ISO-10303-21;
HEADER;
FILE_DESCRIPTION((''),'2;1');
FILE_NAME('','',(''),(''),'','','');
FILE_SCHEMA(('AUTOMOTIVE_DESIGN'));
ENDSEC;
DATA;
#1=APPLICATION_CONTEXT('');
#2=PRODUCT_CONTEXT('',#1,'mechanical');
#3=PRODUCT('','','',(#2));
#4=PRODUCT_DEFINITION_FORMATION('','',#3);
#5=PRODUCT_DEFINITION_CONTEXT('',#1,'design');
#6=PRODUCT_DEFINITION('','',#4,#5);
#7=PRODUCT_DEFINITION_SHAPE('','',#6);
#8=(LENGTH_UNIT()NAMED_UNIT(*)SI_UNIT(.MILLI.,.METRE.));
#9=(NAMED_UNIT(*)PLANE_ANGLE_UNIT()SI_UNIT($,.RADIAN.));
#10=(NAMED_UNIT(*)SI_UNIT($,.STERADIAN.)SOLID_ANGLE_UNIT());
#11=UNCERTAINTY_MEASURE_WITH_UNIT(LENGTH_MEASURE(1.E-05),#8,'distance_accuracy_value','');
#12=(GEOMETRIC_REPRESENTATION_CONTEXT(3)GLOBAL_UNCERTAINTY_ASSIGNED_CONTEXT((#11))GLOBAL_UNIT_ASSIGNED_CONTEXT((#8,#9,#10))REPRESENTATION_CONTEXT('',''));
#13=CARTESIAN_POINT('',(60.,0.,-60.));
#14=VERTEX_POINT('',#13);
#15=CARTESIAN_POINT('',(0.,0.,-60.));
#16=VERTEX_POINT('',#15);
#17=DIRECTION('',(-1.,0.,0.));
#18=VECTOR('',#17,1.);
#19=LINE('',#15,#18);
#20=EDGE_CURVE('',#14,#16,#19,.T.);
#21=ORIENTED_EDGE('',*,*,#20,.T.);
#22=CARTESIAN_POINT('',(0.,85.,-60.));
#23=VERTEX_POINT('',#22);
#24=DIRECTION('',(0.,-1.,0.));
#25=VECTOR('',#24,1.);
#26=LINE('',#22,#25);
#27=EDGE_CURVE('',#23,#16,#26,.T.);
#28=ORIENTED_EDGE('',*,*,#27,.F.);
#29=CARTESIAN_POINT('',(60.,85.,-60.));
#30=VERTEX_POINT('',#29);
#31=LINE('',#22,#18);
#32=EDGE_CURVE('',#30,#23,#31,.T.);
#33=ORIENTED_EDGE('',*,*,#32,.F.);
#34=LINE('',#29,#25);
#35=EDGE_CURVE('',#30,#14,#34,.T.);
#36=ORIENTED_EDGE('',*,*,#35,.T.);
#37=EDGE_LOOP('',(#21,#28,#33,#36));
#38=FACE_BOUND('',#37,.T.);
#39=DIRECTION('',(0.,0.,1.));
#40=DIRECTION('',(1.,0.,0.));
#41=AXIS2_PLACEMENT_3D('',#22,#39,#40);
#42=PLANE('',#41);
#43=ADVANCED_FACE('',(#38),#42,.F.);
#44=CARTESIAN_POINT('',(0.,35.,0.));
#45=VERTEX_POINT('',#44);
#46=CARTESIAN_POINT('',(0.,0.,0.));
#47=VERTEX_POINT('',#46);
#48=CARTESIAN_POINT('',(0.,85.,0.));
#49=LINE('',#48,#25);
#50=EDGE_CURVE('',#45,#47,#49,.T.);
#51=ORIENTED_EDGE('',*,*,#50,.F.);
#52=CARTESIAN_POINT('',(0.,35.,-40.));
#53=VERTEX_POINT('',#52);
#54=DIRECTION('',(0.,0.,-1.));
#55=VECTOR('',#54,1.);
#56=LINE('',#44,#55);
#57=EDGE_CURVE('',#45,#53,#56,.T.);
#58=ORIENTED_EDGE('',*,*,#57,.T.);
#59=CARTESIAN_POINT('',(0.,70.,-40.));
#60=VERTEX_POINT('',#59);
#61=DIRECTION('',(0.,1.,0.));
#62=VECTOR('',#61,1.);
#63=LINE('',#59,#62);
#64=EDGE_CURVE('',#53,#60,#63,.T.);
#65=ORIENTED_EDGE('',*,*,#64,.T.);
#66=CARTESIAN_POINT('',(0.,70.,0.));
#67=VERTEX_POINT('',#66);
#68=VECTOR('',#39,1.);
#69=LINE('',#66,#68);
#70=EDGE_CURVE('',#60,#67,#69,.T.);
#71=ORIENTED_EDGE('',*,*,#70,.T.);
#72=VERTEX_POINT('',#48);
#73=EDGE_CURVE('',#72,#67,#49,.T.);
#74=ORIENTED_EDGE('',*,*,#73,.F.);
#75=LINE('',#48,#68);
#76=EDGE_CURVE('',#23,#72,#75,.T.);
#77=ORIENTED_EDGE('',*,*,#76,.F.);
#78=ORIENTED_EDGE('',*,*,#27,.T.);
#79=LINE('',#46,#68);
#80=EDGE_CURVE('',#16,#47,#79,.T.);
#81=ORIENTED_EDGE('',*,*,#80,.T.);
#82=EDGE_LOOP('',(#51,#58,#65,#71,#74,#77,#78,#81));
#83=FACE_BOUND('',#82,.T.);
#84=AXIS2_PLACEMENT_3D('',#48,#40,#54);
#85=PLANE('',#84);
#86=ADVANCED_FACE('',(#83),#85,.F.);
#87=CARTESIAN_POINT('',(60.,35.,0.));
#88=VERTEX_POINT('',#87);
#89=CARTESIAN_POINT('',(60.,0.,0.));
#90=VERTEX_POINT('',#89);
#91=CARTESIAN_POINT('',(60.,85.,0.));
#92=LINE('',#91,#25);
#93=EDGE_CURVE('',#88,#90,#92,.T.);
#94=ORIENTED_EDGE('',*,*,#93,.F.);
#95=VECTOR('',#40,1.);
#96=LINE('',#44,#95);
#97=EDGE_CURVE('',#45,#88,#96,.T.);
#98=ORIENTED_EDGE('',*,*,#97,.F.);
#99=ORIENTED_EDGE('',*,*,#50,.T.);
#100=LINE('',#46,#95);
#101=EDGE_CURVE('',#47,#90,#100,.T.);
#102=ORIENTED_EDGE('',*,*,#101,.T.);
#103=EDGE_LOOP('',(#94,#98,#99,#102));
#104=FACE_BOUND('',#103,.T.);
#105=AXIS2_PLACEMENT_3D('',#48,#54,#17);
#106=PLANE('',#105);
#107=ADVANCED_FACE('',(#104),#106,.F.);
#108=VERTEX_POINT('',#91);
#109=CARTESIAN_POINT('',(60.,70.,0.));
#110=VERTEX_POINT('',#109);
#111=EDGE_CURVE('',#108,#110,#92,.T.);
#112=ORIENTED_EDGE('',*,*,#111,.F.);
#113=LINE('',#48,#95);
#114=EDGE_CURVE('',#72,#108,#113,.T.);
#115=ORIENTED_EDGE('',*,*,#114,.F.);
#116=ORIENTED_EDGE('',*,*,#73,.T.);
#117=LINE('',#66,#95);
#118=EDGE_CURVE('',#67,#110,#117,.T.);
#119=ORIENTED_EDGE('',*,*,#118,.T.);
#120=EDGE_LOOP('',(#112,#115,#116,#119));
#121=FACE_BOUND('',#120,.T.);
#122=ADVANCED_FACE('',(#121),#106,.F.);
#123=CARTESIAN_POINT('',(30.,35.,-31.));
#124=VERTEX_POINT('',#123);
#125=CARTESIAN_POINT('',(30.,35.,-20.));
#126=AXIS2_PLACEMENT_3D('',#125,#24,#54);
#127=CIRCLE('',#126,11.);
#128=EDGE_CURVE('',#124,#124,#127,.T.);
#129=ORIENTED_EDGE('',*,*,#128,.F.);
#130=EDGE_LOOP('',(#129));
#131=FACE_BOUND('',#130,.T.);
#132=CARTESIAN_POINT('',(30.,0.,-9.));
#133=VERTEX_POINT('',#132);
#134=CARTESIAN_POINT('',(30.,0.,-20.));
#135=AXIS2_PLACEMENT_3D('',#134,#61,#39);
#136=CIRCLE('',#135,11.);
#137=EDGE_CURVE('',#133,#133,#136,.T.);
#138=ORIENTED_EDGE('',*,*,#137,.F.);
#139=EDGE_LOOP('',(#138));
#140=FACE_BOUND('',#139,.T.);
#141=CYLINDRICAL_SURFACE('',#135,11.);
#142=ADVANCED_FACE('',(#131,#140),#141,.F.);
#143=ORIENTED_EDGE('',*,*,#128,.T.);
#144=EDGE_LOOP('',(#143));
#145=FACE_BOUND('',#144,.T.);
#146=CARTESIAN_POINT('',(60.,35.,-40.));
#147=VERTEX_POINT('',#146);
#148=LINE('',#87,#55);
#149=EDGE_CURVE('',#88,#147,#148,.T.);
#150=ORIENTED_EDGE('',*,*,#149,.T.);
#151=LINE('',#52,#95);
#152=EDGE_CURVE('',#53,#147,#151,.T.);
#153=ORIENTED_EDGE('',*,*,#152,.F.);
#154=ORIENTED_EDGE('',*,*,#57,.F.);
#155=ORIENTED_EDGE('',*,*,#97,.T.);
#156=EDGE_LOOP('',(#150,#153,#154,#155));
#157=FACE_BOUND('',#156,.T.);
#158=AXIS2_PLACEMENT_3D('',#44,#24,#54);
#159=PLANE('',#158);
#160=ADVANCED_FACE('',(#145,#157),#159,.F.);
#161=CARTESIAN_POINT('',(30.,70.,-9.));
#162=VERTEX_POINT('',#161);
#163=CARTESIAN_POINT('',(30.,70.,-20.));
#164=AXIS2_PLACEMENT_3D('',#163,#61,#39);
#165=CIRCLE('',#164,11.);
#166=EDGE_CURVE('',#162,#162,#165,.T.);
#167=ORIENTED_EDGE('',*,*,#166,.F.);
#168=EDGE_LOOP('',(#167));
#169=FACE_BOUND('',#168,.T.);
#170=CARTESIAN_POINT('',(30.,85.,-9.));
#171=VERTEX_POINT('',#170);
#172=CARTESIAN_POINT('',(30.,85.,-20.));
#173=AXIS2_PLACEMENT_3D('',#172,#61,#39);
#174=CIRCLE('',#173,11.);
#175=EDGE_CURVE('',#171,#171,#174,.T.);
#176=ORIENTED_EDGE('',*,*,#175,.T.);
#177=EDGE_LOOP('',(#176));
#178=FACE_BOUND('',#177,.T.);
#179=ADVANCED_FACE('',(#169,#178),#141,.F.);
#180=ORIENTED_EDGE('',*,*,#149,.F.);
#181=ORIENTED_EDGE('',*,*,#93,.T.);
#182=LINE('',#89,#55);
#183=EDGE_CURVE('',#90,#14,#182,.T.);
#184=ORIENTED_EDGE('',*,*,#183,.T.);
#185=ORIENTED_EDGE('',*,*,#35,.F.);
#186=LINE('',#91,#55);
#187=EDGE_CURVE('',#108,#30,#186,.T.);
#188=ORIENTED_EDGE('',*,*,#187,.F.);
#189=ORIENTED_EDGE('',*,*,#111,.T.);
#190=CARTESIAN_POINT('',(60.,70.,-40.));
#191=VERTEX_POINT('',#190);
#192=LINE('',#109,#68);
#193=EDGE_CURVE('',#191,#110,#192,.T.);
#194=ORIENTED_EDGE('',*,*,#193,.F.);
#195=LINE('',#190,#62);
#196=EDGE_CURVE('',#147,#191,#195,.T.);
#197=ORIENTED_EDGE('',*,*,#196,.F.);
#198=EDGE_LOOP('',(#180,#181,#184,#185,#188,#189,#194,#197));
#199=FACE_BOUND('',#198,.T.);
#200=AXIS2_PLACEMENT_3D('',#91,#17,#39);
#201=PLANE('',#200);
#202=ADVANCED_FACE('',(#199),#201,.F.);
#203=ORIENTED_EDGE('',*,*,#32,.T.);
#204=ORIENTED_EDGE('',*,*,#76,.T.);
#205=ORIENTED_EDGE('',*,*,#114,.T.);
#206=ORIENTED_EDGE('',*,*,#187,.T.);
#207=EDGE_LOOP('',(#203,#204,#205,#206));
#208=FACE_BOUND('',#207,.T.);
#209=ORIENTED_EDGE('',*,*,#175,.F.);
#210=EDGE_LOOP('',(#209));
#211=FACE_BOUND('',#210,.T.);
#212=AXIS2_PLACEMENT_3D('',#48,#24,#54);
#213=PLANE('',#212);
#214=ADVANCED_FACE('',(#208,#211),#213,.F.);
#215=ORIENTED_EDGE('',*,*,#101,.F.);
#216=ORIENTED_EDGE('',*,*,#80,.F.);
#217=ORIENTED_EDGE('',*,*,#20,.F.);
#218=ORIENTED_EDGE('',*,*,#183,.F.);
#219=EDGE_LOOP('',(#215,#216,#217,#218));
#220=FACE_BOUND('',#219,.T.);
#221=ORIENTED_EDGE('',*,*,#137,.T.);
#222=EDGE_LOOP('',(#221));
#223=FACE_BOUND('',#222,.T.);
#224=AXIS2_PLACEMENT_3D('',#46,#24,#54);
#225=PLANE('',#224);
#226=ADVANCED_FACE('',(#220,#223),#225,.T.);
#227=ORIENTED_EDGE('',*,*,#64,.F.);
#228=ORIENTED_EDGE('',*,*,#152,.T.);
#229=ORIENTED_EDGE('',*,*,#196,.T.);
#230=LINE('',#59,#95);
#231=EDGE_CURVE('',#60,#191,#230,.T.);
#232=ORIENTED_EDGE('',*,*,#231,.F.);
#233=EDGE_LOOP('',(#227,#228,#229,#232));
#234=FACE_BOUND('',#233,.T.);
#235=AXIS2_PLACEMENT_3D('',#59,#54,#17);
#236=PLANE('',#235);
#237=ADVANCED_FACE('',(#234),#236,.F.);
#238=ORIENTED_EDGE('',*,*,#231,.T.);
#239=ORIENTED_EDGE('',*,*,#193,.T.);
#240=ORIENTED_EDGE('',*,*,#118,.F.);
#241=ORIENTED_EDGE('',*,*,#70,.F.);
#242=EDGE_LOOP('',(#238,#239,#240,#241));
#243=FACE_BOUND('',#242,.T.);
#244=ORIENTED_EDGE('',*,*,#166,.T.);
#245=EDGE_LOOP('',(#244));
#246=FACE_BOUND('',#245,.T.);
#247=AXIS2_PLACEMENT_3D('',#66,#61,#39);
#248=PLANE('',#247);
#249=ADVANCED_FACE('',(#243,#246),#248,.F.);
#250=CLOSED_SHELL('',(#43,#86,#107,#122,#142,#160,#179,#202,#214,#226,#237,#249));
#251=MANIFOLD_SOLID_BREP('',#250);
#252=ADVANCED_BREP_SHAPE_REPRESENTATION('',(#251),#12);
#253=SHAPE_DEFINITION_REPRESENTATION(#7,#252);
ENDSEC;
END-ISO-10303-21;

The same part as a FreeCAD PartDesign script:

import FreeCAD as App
import Part
import Sketcher

V = App.Vector

doc = App.newDocument("Part")
params = doc.addObject("Spreadsheet::Sheet", "Params")
for row, (alias, value) in enumerate([
    ("sketch1_width", "60 mm"),
    ("pad1_length", "85 mm"),
    ("sketch2_width", "35 mm"),
    ("sketch2_height", "40 mm"),
    ("sketch3_diameter", "22 mm"),
], start=1):
    params.set(f"A{row}", alias)
    params.set(f"B{row}", "=" + value)
    params.setAlias(f"B{row}", alias)

body = doc.addObject("PartDesign::Body", "Body")

sketch1 = doc.addObject("Sketcher::SketchObject", "Sketch")
body.addObject(sketch1)
sketch1.AttachmentSupport = (doc.XZ_Plane, [""])
sketch1.MapMode = "FlatFace"
sketch1.addGeometry([
    Part.LineSegment(V(0, -60, 0), V(0, 0, 0)),
    Part.LineSegment(V(0, 0, 0), V(60, 0, 0)),
    Part.LineSegment(V(60, 0, 0), V(60, -60, 0)),
    Part.LineSegment(V(60, -60, 0), V(0, -60, 0)),
], False)
sketch1.addConstraint([
    Sketcher.Constraint("Coincident", 0, 2, 1, 1),
    Sketcher.Constraint("Coincident", 1, 2, 2, 1),
    Sketcher.Constraint("Coincident", 2, 2, 3, 1),
    Sketcher.Constraint("Coincident", 3, 2, 0, 1),
    Sketcher.Constraint("Vertical", 0),
    Sketcher.Constraint("Horizontal", 1),
    Sketcher.Constraint("Vertical", 2),
    Sketcher.Constraint("Horizontal", 3),
    Sketcher.Constraint("Coincident", 0, 2, -1, 1),
    Sketcher.Constraint("Equal", 3, 0),
    Sketcher.Constraint("DistanceX", 1, 1, 1, 2, 60.0),
])
sketch1.setExpression("Constraints[10]", "Params.sketch1_width")
pad1 = doc.addObject("PartDesign::Pad", "Pad")
body.addObject(pad1)
pad1.Profile = sketch1
pad1.setExpression("Length", "Params.pad1_length")
pad1.Reversed = True

sketch2 = doc.addObject("Sketcher::SketchObject", "Sketch001")
body.addObject(sketch2)
sketch2.AttachmentSupport = (doc.YZ_Plane, [""])
sketch2.MapMode = "FlatFace"
sketch2.AttachmentOffset = App.Placement(V(0, 0, 60), App.Rotation())
sketch2.addGeometry([
    Part.LineSegment(V(70, 0, 0), V(35, 0, 0)),
    Part.LineSegment(V(35, 0, 0), V(35, -40, 0)),
    Part.LineSegment(V(35, -40, 0), V(70, -40, 0)),
    Part.LineSegment(V(70, -40, 0), V(70, 0, 0)),
], False)
sketch2.addConstraint([
    Sketcher.Constraint("Coincident", 0, 2, 1, 1),
    Sketcher.Constraint("Coincident", 1, 2, 2, 1),
    Sketcher.Constraint("Coincident", 2, 2, 3, 1),
    Sketcher.Constraint("Coincident", 3, 2, 0, 1),
    Sketcher.Constraint("Horizontal", 0),
    Sketcher.Constraint("Vertical", 1),
    Sketcher.Constraint("Horizontal", 2),
    Sketcher.Constraint("Vertical", 3),
    Sketcher.Constraint("PointOnObject", 0, 2, -1),
    Sketcher.Constraint("DistanceX", 0, 2, 0, 1, 35.0),
    Sketcher.Constraint("DistanceY", 1, 2, 1, 1, 40.0),
    Sketcher.Constraint("DistanceX", -1, 1, 0, 2, 35.0),
])
sketch2.setExpression("Constraints[9]", "Params.sketch2_width")
sketch2.setExpression("Constraints[10]", "Params.sketch2_height")
pocket1 = doc.addObject("PartDesign::Pocket", "Pocket")
body.addObject(pocket1)
pocket1.Profile = sketch2
pocket1.Type = "ThroughAll"

sketch3 = doc.addObject("Sketcher::SketchObject", "Sketch002")
body.addObject(sketch3)
sketch3.AttachmentSupport = (doc.XZ_Plane, [""])
sketch3.MapMode = "FlatFace"
sketch3.AttachmentOffset = App.Placement(V(0, 0, -35), App.Rotation())
sketch3.addGeometry(Part.Circle(V(30, -20, 0), V(0, 0, 1), 11), False)
sketch3.addConstraint([
    Sketcher.Constraint("Diameter", 0, 22.0),
    Sketcher.Constraint("DistanceX", -1, 1, 0, 3, 30.0),
    Sketcher.Constraint("DistanceY", 0, 3, -1, 1, 20.0),
])
sketch3.setExpression("Constraints[0]", "Params.sketch3_diameter")
pocket2 = doc.addObject("PartDesign::Pocket", "Pocket001")
body.addObject(pocket2)
pocket2.Profile = sketch3
pocket2.Type = "ThroughAll"
pocket2.Midplane = True

doc.recompute()
